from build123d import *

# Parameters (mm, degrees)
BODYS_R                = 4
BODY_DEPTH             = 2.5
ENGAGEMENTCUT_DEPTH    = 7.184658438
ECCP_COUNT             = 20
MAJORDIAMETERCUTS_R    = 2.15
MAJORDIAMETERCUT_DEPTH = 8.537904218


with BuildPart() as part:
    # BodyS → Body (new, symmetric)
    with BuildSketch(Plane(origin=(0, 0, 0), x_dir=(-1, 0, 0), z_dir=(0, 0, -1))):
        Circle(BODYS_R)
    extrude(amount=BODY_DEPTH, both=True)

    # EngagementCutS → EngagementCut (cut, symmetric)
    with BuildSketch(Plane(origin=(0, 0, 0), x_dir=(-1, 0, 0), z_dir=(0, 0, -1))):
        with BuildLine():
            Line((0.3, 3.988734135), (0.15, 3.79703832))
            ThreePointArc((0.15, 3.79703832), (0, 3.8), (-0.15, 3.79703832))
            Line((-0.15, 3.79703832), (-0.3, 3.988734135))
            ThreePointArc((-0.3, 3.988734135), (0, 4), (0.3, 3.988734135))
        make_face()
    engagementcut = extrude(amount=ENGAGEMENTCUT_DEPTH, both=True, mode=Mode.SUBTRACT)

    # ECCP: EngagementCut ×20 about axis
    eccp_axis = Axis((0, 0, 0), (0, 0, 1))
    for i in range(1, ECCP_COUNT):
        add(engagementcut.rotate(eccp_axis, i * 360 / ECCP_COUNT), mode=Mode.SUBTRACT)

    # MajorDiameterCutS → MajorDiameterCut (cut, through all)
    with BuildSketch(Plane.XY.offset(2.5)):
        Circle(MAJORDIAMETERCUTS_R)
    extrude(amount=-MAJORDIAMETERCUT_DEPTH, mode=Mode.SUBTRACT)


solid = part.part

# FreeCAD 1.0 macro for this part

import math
import FreeCAD as App
import Part
import Sketcher
from FreeCAD import Vector
Q = App.Units.Quantity

doc = App.newDocument("Part")
body = doc.addObject("PartDesign::Body", "Body")

# Sketch on XY plane
sketch1 = body.newObject("Sketcher::SketchObject", "Sketch")
sketch1.AttachmentSupport = (doc.getObject("XY_Plane"), [""])
sketch1.MapMode = "FlatFace"
sketch1.addGeometry(Part.Circle(Vector(0, 0, 0), Vector(0, 0, 1), 4), False)
sketch1.addConstraint(Sketcher.Constraint("Coincident", 0, 3, -1, 1))
sketch1.addConstraint(Sketcher.Constraint("Diameter", 0, Q("8 mm")))
pad1 = body.newObject("PartDesign::Pad", "Pad")
pad1.Profile = sketch1
pad1.Length = 5
pad1.Midplane = True

# Sketch on XY plane
sketch2 = body.newObject("Sketcher::SketchObject", "Sketch001")
sketch2.AttachmentSupport = (doc.getObject("XY_Plane"), [""])
sketch2.MapMode = "FlatFace"
sketch2.addGeometry(Part.LineSegment(Vector(-0.15, 3.797038, 0), Vector(-0.3, 3.988734, 0)), False)
sketch2.addGeometry(Part.ArcOfCircle(Part.Circle(Vector(0, 0, 0), Vector(0, 0, 1), 4), math.radians(85.698778), math.radians(94.301222)), False)
sketch2.addGeometry(Part.LineSegment(Vector(0.3, 3.988734, 0), Vector(0.15, 3.797038, 0)), False)
sketch2.addGeometry(Part.ArcOfCircle(Part.Circle(Vector(0, -0.000001, 0), Vector(0, 0, 1), 3.800001), math.radians(87.737737), math.radians(92.262263)), False)
sketch2.addConstraint(Sketcher.Constraint("Coincident", 0, 2, 1, 2))
sketch2.addConstraint(Sketcher.Constraint("Coincident", 1, 1, 2, 1))
sketch2.addConstraint(Sketcher.Constraint("Coincident", 2, 2, 3, 1))
sketch2.addConstraint(Sketcher.Constraint("Coincident", 3, 2, 0, 1))
sketch2.addConstraint(Sketcher.Constraint("Coincident", 1, 3, -1, 1))
sketch2.addConstraint(Sketcher.Constraint("Coincident", 3, 3, -1, 1))
sketch2.addConstraint(Sketcher.Constraint("Horizontal", 0, 2, 1, 1))
sketch2.addConstraint(Sketcher.Constraint("Horizontal", 2, 2, 3, 2))
sketch2.addConstraint(Sketcher.Constraint("Radius", 1, Q("4 mm")))
sketch2.addConstraint(Sketcher.Constraint("Radius", 3, Q("3.800001 mm")))
sketch2.addConstraint(Sketcher.Constraint("DistanceX", 0, 2, -1, 1, Q("0.3 mm")))
sketch2.addConstraint(Sketcher.Constraint("DistanceX", 3, 2, 2, 2, Q("0.3 mm")))
pocket1 = body.newObject("PartDesign::Pocket", "Pocket")
pocket1.Profile = sketch2
pocket1.Length = 14.369317
pocket1.Midplane = True
doc.recompute()

polarpattern = body.newObject("PartDesign::PolarPattern", "PolarPattern")
polarpattern.Originals = [pocket1]
polarpattern.Axis = (doc.getObject("Z_Axis"), [""])
polarpattern.Angle = 360
polarpattern.Occurrences = 20
body.Tip = polarpattern

# Sketch on XY plane
sketch3 = body.newObject("Sketcher::SketchObject", "Sketch002")
sketch3.AttachmentSupport = (doc.getObject("XY_Plane"), [""])
sketch3.MapMode = "FlatFace"
sketch3.AttachmentOffset = App.Placement(Vector(0, 0, 2.5), App.Rotation())
sketch3.addGeometry(Part.Circle(Vector(0, 0, 0), Vector(0, 0, 1), 2.15), False)
sketch3.addConstraint(Sketcher.Constraint("Coincident", 0, 3, -1, 1))
sketch3.addConstraint(Sketcher.Constraint("Diameter", 0, Q("4.3 mm")))
pocket2 = body.newObject("PartDesign::Pocket", "Pocket001")
pocket2.Profile = sketch3
pocket2.Type = "ThroughAll"

doc.recompute()
